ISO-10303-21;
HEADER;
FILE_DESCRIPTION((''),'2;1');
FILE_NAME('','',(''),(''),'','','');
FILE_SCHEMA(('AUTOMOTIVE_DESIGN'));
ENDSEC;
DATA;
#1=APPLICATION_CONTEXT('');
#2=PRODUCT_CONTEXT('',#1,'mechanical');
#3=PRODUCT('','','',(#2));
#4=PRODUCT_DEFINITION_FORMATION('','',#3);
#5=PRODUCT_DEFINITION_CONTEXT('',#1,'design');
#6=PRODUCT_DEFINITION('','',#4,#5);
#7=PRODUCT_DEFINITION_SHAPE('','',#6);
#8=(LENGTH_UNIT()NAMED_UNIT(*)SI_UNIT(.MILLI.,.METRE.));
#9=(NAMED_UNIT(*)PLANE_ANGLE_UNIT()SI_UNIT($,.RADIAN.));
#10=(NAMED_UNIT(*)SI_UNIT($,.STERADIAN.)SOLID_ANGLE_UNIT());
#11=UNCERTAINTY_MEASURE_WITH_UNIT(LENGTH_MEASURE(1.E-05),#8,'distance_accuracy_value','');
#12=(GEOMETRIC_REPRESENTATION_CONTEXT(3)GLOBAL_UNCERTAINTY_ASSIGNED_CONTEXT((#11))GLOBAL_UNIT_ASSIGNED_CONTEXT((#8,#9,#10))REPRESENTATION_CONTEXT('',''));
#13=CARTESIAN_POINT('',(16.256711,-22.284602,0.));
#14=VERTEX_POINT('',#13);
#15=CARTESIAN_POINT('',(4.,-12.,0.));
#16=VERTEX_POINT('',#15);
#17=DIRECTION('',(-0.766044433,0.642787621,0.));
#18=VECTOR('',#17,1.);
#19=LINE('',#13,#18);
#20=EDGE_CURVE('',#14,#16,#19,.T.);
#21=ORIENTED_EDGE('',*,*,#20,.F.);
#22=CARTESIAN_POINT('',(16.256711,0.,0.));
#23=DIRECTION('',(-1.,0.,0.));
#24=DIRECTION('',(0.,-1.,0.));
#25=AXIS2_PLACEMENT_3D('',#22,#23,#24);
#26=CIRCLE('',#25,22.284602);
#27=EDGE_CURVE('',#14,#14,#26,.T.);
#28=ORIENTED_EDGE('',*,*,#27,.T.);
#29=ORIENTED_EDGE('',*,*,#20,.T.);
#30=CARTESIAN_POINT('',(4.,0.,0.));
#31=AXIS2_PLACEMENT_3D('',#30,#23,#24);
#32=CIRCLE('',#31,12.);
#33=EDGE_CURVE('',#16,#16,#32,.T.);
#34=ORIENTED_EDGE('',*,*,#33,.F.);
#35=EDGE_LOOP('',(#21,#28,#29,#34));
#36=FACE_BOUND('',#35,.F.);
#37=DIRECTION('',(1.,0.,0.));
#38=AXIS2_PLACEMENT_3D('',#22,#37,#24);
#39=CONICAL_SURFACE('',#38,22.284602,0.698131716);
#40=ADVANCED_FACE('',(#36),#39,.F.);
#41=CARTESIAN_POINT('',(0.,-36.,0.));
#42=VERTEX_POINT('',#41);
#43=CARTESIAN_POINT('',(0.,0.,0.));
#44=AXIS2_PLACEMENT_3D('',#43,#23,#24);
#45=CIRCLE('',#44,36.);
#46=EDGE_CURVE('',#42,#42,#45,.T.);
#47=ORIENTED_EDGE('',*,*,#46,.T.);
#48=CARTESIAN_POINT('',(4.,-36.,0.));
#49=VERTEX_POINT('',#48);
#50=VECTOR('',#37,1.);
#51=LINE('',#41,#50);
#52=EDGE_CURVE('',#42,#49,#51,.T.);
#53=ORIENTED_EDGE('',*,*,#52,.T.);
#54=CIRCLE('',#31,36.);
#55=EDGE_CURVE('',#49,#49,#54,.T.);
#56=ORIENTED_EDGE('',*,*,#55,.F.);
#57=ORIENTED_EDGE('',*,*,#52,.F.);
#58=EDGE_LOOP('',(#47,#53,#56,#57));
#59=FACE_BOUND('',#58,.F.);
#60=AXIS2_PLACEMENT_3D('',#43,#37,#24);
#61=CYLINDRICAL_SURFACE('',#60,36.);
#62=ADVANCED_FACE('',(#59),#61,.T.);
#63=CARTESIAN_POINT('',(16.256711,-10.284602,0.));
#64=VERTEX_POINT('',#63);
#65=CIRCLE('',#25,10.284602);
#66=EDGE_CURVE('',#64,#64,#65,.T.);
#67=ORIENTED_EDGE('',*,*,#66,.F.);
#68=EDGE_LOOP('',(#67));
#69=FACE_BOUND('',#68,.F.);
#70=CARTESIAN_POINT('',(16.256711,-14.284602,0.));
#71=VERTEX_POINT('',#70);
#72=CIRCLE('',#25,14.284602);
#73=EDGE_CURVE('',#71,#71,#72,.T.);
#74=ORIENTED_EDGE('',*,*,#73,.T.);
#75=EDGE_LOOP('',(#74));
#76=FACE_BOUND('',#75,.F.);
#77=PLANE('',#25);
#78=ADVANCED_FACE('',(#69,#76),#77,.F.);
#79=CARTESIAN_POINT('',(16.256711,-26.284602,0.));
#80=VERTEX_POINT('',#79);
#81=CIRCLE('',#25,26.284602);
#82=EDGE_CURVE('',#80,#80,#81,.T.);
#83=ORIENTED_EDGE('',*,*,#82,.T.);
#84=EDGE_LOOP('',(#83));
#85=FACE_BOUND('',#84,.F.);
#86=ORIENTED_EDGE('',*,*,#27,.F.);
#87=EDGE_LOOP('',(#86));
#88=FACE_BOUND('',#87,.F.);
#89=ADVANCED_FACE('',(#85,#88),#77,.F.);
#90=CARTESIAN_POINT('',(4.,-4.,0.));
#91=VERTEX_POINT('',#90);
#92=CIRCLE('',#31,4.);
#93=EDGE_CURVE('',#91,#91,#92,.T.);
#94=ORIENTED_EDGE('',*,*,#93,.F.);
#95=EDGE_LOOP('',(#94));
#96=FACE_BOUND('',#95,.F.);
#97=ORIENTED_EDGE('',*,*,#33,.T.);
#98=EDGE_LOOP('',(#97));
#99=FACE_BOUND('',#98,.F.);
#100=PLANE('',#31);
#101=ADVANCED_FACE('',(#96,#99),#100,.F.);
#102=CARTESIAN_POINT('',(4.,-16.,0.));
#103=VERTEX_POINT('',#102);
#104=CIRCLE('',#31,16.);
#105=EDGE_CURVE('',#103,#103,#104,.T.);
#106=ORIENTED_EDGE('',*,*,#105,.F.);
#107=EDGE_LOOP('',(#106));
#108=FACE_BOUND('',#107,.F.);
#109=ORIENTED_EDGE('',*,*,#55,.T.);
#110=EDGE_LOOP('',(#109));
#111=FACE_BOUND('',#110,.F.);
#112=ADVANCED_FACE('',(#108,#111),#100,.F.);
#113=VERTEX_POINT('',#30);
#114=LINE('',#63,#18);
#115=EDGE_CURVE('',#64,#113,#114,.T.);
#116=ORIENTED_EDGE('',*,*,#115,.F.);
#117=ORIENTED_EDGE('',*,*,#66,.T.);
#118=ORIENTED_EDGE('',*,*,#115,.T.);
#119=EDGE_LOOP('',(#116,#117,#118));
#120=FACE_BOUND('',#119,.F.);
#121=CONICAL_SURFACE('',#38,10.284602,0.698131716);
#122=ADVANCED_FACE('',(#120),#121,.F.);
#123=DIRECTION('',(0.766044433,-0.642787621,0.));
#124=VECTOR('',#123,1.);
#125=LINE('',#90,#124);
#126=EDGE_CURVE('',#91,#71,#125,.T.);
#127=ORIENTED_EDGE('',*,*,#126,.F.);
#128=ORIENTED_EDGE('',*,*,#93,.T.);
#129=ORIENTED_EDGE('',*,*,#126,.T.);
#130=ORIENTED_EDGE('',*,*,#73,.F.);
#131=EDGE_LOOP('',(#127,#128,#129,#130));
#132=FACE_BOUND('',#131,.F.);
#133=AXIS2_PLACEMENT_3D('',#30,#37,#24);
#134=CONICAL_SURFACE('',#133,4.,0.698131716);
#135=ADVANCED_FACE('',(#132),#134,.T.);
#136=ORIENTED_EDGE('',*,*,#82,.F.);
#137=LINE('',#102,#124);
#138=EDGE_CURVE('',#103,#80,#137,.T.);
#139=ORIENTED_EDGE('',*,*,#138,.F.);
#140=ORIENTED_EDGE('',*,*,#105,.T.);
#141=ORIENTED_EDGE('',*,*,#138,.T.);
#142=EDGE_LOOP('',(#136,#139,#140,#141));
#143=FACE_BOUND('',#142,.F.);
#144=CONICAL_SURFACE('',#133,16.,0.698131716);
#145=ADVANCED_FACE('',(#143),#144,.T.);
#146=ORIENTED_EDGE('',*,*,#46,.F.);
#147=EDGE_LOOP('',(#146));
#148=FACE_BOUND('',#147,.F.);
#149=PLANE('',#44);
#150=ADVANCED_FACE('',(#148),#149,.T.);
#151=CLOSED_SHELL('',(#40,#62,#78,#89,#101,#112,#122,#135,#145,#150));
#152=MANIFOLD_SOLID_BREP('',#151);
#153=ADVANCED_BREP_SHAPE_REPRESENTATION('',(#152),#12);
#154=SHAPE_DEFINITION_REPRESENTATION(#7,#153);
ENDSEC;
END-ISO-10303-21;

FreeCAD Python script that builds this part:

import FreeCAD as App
import Part
import Sketcher
Q = App.Units.Quantity


def add_polygon(sketch, points):
    """Adds a closed chain of lines whose ends are joined by coincident constraints."""
    first, n = sketch.GeometryCount, len(points)
    for a, b in zip(points, points[1:] + points[:1]):
        sketch.addGeometry(Part.LineSegment(App.Vector(*a, 0), App.Vector(*b, 0)), False)
    for i in range(n):
        sketch.addConstraint(Sketcher.Constraint("Coincident", first + i, 2, first + (i + 1) % n, 1))

doc = App.newDocument("Part")
params = doc.addObject("Spreadsheet::Sheet", "Params")
for row, (alias, value) in enumerate([
    ("sketch1_width", "4 mm"),
    ("sketch1_height", "36 mm"),
    ("sketch1_height2", "20 mm"),
    ("sketch1_length", "16 mm"),
    ("revolution_angle", "360 deg"),
], start=1):
    params.set(f"A{row}", alias)
    params.set(f"B{row}", "=" + value)
    params.setAlias(f"B{row}", alias)

body = doc.addObject("PartDesign::Body", "Body")

sketch1 = doc.addObject("Sketcher::SketchObject", "Sketch")
body.addObject(sketch1)
sketch1.AttachmentSupport = (doc.XY_Plane, [""])
sketch1.MapMode = "FlatFace"
add_polygon(sketch1, [(4, 0), (0, 0), (0, -36), (4, -36), (4, -16), (16.3, -26.3), (16.3, -22.3), (4, -12), (4, -4), (16.3, -14.3), (16.3, -10.3)])
sketch1.addConstraint([
    Sketcher.Constraint("Horizontal", 0),
    Sketcher.Constraint("Vertical", 1),
    Sketcher.Constraint("Horizontal", 2),
    Sketcher.Constraint("Vertical", 3),
    Sketcher.Constraint("Vertical", 5),
    Sketcher.Constraint("Vertical", 7),
    Sketcher.Constraint("Vertical", 9),
    Sketcher.Constraint("Coincident", 0, 2, -1, 1),
    Sketcher.Constraint("Parallel", 4, 6),
    Sketcher.Constraint("Parallel", 6, 8),
    Sketcher.Constraint("Parallel", 8, 10),
    Sketcher.Constraint("Vertical", 3, 2, 6, 2),
    Sketcher.Constraint("Vertical", 5, 2, 8, 2),
    Sketcher.Constraint("Vertical", 7, 2, 10, 2),
    Sketcher.Constraint("Equal", 2, 5),
    Sketcher.Constraint("Equal", 5, 9),
    Sketcher.Constraint("DistanceX", 0, 2, 0, 1, Q("4 mm")),
    Sketcher.Constraint("DistanceY", 1, 2, 1, 1, Q("36 mm")),
    Sketcher.Constraint("DistanceY", 3, 1, 3, 2, Q("20 mm")),
    Sketcher.Constraint("Angle", 4, Q("-40.000001 deg")),
    Sketcher.Constraint("Distance", 4, Q("16 mm")),
])
sketch1.setExpression("Constraints[27]", "Params.sketch1_width")
sketch1.setExpression("Constraints[28]", "Params.sketch1_height")
sketch1.setExpression("Constraints[29]", "Params.sketch1_height2")
sketch1.setExpression("Constraints[31]", "Params.sketch1_length")
revolution = doc.addObject("PartDesign::Revolution", "Revolution")
body.addObject(revolution)
revolution.Profile = sketch1
revolution.ReferenceAxis = (sketch1, ["H_Axis"])
revolution.setExpression("Angle", "Params.revolution_angle")

doc.recompute()
